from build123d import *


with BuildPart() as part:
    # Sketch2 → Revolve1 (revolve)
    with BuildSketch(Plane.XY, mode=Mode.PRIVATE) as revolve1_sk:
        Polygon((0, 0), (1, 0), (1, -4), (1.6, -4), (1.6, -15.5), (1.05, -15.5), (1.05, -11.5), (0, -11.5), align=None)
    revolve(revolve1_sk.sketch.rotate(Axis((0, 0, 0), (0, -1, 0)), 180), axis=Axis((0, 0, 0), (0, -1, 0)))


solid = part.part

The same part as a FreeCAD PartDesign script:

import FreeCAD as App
import Part
import Sketcher


def add_polygon(sketch, points):
    """Adds a closed chain of lines whose ends are joined by coincident constraints."""
    first, n = sketch.GeometryCount, len(points)
    for a, b in zip(points, points[1:] + points[:1]):
        sketch.addGeometry(Part.LineSegment(App.Vector(*a, 0), App.Vector(*b, 0)), False)
    for i in range(n):
        sketch.addConstraint(Sketcher.Constraint("Coincident", first + i, 2, first + (i + 1) % n, 1))

doc = App.newDocument("Part")
body = doc.addObject("PartDesign::Body", "Body")

# Sketch on XY plane
sketch1 = doc.addObject("Sketcher::SketchObject", "Sketch")
body.addObject(sketch1)
sketch1.AttachmentSupport = (doc.XY_Plane, [""])
sketch1.MapMode = "FlatFace"
add_polygon(sketch1, [(1, 0), (0, 0), (0, -11.5), (1.1, -11.5), (1.1, -15.5), (1.6, -15.5), (1.6, -4), (1, -4)])  # lines 0-7
sketch1.addConstraint([
    Sketcher.Constraint("Horizontal", 0),
    Sketcher.Constraint("Vertical", 1),
    Sketcher.Constraint("Horizontal", 2),
    Sketcher.Constraint("Vertical", 3),
    Sketcher.Constraint("Horizontal", 4),
    Sketcher.Constraint("Vertical", 5),
    Sketcher.Constraint("Horizontal", 6),
    Sketcher.Constraint("Vertical", 7),
    Sketcher.Constraint("Coincident", 0, 2, -1, 1),
    Sketcher.Constraint("Equal", 1, 5),
    Sketcher.Constraint("DistanceX", 0, 2, 0, 1, 1.0),
    Sketcher.Constraint("DistanceY", 3, 2, 3, 1, 4.0),
    Sketcher.Constraint("DistanceX", 6, 2, 6, 1, 0.6),
    Sketcher.Constraint("DistanceY", 1, 2, 1, 1, 11.5),
    Sketcher.Constraint("DistanceX", 2, 1, 2, 2, 1.05),
])
revolution = doc.addObject("PartDesign::Revolution", "Revolution")
body.addObject(revolution)
revolution.Profile = sketch1
revolution.ReferenceAxis = (sketch1, ["V_Axis"])
revolution.Angle = 360

doc.recompute()
